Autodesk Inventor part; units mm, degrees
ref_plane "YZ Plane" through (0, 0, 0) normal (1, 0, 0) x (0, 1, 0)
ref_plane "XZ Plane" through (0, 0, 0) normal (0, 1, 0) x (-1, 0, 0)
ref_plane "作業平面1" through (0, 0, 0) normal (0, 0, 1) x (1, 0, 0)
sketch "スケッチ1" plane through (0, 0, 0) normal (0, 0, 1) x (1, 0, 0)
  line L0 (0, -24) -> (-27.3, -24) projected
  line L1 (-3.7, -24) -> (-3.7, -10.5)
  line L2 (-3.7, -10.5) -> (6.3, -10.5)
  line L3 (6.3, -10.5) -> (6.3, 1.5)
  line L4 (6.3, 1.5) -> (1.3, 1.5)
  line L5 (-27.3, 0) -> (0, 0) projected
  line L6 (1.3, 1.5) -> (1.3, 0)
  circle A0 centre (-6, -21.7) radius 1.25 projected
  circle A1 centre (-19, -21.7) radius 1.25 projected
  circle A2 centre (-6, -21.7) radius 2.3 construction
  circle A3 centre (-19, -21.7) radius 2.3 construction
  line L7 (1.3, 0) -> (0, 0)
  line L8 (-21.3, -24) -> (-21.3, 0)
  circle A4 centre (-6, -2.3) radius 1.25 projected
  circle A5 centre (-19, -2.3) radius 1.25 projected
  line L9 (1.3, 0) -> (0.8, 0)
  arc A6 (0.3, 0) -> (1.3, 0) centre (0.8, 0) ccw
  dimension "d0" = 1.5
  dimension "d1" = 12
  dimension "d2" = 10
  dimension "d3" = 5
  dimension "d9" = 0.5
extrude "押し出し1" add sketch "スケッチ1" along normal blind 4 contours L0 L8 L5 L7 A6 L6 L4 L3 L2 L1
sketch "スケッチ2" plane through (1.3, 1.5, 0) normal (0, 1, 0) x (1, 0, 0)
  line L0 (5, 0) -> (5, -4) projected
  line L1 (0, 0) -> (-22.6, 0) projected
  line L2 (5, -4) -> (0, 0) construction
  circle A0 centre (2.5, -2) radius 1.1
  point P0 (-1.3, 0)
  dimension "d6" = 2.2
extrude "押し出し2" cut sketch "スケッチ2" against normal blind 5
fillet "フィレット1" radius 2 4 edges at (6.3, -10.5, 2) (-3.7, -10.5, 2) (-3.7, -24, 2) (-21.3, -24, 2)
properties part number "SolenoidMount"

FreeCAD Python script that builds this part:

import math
import FreeCAD as App
import Part
import Sketcher


def edges_at(feature, points):
    """Names of the edges that pass closest to the given points."""
    edges = feature.Shape.Edges
    near = lambda p: min(range(len(edges)), key=lambda i: edges[i].distToShape(Part.Vertex(*p))[0])
    return sorted({f"Edge{near(p) + 1}" for p in points})

doc = App.newDocument("Part")
body = doc.addObject("PartDesign::Body", "Body")

# Sketch on XY plane
sketch1 = body.newObject("Sketcher::SketchObject", "Sketch")
sketch1.AttachmentSupport = (doc.getObject("XY_Plane"), [""])
sketch1.MapMode = "FlatFace"
sketch1.addGeometry([
    Part.LineSegment(App.Vector(-21.3, -24, 0), App.Vector(-3.7, -24, 0)),  # 0
    Part.LineSegment(App.Vector(-3.7, -24, 0), App.Vector(-3.7, -10.5, 0)),  # 1
    Part.LineSegment(App.Vector(-3.7, -10.5, 0), App.Vector(6.3, -10.5, 0)),  # 2
    Part.LineSegment(App.Vector(6.3, -10.5, 0), App.Vector(6.3, 1.5, 0)),  # 3
    Part.LineSegment(App.Vector(6.3, 1.5, 0), App.Vector(1.3, 1.5, 0)),  # 4
    Part.LineSegment(App.Vector(1.3, 1.5, 0), App.Vector(1.3, 0, 0)),  # 5
    Part.ArcOfCircle(Part.Circle(App.Vector(0.8, 0, 0), App.Vector(0, 0, 1), 0.5), math.radians(180), math.radians(360)),  # 6
    Part.LineSegment(App.Vector(0.3, 0, 0), App.Vector(-21.3, 0, 0)),  # 7
    Part.LineSegment(App.Vector(-21.3, 0, 0), App.Vector(-21.3, -24, 0)),  # 8
    Part.Circle(App.Vector(-19, -21.7, 0), App.Vector(0, 0, 1), 1.2),  # 9
    Part.Circle(App.Vector(-6, -21.7, 0), App.Vector(0, 0, 1), 1.2),  # 10
    Part.Circle(App.Vector(-19, -2.3, 0), App.Vector(0, 0, 1), 1.2),  # 11
    Part.Circle(App.Vector(-6, -2.3, 0), App.Vector(0, 0, 1), 1.2),  # 12
], False)
sketch1.addConstraint([
    Sketcher.Constraint("Coincident", 0, 2, 1, 1),
    Sketcher.Constraint("Coincident", 1, 2, 2, 1),
    Sketcher.Constraint("Coincident", 2, 2, 3, 1),
    Sketcher.Constraint("Coincident", 3, 2, 4, 1),
    Sketcher.Constraint("Coincident", 4, 2, 5, 1),
    Sketcher.Constraint("Tangent", 5, 2, 6, 2),
    Sketcher.Constraint("Coincident", 6, 1, 7, 1),
    Sketcher.Constraint("Coincident", 7, 2, 8, 1),
    Sketcher.Constraint("Coincident", 8, 2, 0, 1),
    Sketcher.Constraint("Horizontal", 0),
    Sketcher.Constraint("Vertical", 1),
    Sketcher.Constraint("Horizontal", 2),
    Sketcher.Constraint("Vertical", 3),
    Sketcher.Constraint("Horizontal", 4),
    Sketcher.Constraint("Vertical", 5),
    Sketcher.Constraint("Horizontal", 7),
    Sketcher.Constraint("Vertical", 8),
    Sketcher.Constraint("Equal", 9, 10),
    Sketcher.Constraint("Equal", 10, 11),
    Sketcher.Constraint("Equal", 11, 12),
    Sketcher.Constraint("PointOnObject", 6, 3, -1),
    Sketcher.Constraint("PointOnObject", 6, 1, -1),
    Sketcher.Constraint("Horizontal", 9, 3, 10, 3),
    Sketcher.Constraint("Horizontal", 11, 3, 12, 3),
    Sketcher.Constraint("Vertical", 9, 3, 11, 3),
    Sketcher.Constraint("Vertical", 10, 3, 12, 3),
    Sketcher.Constraint("Radius", 6, 0.5),
    Sketcher.Constraint("DistanceX", 2, 1, 2, 2, 10.0),
    Sketcher.Constraint("DistanceX", 4, 2, 4, 1, 5.0),
    Sketcher.Constraint("DistanceY", 3, 1, 3, 2, 12.0),
    Sketcher.Constraint("DistanceY", 5, 2, 5, 1, 1.5),
    Sketcher.Constraint("Diameter", 9, 2.5),
    Sketcher.Constraint("DistanceY", 8, 2, 8, 1, 24.0),
    Sketcher.Constraint("DistanceX", 0, 1, 0, 2, 17.6),
    Sketcher.Constraint("DistanceX", 9, 3, -1, 1, 19.0),
    Sketcher.Constraint("DistanceX", 10, 3, -1, 1, 6.0),
    Sketcher.Constraint("DistanceX", -1, 1, 6, 3, 0.8),
    Sketcher.Constraint("DistanceY", 9, 3, -1, 1, 21.7),
    Sketcher.Constraint("DistanceY", 11, 3, -1, 1, 2.3),
])
pad1 = body.newObject("PartDesign::Pad", "Pad")
pad1.Profile = sketch1
pad1.Length = 4

# Sketch on XZ plane
sketch2 = body.newObject("Sketcher::SketchObject", "Sketch001")
sketch2.AttachmentSupport = (doc.getObject("XZ_Plane"), [""])
sketch2.MapMode = "FlatFace"
sketch2.AttachmentOffset = App.Placement(App.Vector(0, 0, -1.5), App.Rotation())
sketch2.addGeometry(Part.Circle(App.Vector(3.8, 2, 0), App.Vector(0, 0, 1), 1.1), False)
sketch2.addConstraint([
    Sketcher.Constraint("Diameter", 0, 2.2),
    Sketcher.Constraint("DistanceY", -1, 1, 0, 3, 2.0),
    Sketcher.Constraint("DistanceX", -1, 1, 0, 3, 3.8),
])
pocket1 = body.newObject("PartDesign::Pocket", "Pocket")
pocket1.Profile = sketch2
pocket1.Length = 5
pocket1.Reversed = True
doc.recompute()

fillet = body.newObject("PartDesign::Fillet", "Fillet")
fillet.Base = (pocket1, edges_at(pocket1, [
    (6.3, -10.5, 2),
    (-3.7, -10.5, 2),
    (-3.7, -24, 2),
    (-21.3, -24, 2),
]))
fillet.Radius = 2

doc.recompute()
